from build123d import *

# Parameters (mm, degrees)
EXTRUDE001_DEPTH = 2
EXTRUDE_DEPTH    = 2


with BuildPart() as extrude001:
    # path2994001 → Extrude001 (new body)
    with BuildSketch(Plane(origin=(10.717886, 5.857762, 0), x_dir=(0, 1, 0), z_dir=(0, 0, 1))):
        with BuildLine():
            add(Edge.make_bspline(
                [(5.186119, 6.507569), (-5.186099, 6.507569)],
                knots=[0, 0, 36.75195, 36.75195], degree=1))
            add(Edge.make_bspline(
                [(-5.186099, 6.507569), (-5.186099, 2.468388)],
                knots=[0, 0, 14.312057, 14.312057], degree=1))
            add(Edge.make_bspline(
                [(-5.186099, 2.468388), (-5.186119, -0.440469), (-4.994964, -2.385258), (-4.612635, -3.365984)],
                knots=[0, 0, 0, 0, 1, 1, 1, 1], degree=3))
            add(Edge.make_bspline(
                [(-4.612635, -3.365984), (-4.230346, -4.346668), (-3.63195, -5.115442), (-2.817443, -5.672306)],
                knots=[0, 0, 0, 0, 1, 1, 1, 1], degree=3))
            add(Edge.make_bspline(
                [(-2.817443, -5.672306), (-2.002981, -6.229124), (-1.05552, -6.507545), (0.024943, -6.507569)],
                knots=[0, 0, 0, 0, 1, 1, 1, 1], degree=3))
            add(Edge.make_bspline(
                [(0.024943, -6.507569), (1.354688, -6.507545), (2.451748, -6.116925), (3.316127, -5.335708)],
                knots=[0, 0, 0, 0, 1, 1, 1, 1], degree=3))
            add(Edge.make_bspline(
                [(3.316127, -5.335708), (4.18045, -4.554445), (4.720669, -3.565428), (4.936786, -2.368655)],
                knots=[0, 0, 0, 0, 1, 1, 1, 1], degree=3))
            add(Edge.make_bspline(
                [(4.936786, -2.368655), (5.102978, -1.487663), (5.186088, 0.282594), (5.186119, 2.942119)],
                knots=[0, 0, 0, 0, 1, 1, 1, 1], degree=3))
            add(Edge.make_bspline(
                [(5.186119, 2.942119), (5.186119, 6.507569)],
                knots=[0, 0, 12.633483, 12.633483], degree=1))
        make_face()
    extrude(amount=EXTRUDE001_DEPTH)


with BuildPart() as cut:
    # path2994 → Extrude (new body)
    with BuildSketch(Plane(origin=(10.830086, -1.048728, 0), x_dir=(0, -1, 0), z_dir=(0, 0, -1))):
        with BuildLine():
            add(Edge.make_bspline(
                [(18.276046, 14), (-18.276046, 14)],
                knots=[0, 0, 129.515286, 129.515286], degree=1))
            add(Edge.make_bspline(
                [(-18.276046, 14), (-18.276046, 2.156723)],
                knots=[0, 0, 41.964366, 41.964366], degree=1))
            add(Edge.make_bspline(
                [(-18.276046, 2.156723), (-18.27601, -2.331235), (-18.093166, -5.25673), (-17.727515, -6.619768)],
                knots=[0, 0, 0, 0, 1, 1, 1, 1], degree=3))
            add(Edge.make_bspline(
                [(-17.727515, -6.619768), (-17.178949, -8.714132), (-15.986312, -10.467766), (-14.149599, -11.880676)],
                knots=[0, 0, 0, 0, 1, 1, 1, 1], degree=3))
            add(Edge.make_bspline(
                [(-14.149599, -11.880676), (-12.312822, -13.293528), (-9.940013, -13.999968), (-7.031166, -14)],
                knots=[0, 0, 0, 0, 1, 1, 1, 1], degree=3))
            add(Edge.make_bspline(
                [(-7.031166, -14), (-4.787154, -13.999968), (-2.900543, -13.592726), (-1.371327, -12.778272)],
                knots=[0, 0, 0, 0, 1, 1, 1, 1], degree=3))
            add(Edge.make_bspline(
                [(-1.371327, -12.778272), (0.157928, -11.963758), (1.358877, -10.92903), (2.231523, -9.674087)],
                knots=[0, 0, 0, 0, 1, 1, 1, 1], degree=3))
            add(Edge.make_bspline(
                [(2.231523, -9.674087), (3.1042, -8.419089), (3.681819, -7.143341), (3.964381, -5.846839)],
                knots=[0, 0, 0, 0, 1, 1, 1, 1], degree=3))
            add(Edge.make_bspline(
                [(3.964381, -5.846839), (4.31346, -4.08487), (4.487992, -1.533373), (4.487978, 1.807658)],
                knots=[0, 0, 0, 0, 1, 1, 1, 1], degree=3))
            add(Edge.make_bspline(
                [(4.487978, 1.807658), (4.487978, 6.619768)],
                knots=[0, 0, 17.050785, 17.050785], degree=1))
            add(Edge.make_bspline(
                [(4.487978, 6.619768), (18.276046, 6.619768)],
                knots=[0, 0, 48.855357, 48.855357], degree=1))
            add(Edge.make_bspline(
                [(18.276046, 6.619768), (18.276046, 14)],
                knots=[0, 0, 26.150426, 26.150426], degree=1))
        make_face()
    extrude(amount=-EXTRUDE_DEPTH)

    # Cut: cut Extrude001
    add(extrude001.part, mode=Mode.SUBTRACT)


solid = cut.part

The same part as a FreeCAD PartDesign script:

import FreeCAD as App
import Part
import Sketcher
from FreeCAD import Vector

doc = App.newDocument("Part")
params = doc.addObject("Spreadsheet::Sheet", "Params")
for row, (alias, value) in enumerate([
    ("pad1_length", "2 mm"),
    ("pad2_length", "2 mm"),
], start=1):
    params.set(f"A{row}", alias)
    params.set(f"B{row}", "=" + value)
    params.setAlias(f"B{row}", alias)

body = doc.addObject("PartDesign::Body", "Body")

sketch1 = doc.addObject("Sketcher::SketchObject", "Sketch")
body.addObject(sketch1)
sketch1.AttachmentSupport = (doc.XY_Plane, [""])
sketch1.MapMode = "FlatFace"
sketch1.addGeometry([
    Part.BSplineCurve([Vector(4.210317, 11.043881, 0), Vector(4.210317, 0.671663, 0)], [2, 2], [0, 36.75195], False, 1, [1, 1], False),
    Part.BSplineCurve([Vector(4.210317, 0.671663, 0), Vector(8.249498, 0.671663, 0)], [2, 2], [0, 14.312057], False, 1, [1, 1], False),
    Part.BSplineCurve([Vector(8.249498, 0.671663, 0), Vector(11.158355, 0.671643, 0), Vector(13.103144, 0.862798, 0), Vector(14.08387, 1.245127, 0)], [4, 4], [0, 1], False, 3, [1, 1, 1, 1], False),
    Part.BSplineCurve([Vector(14.08387, 1.245127, 0), Vector(15.064554, 1.627416, 0), Vector(15.833328, 2.225812, 0), Vector(16.390192, 3.040319, 0)], [4, 4], [0, 1], False, 3, [1, 1, 1, 1], False),
    Part.BSplineCurve([Vector(16.390192, 3.040319, 0), Vector(16.94701, 3.854781, 0), Vector(17.225431, 4.802242, 0), Vector(17.225455, 5.882705, 0)], [4, 4], [0, 1], False, 3, [1, 1, 1, 1], False),
    Part.BSplineCurve([Vector(17.225455, 5.882705, 0), Vector(17.225431, 7.21245, 0), Vector(16.834811, 8.30951, 0), Vector(16.053594, 9.173889, 0)], [4, 4], [0, 1], False, 3, [1, 1, 1, 1], False),
    Part.BSplineCurve([Vector(16.053594, 9.173889, 0), Vector(15.272331, 10.038212, 0), Vector(14.283314, 10.578431, 0), Vector(13.086541, 10.794548, 0)], [4, 4], [0, 1], False, 3, [1, 1, 1, 1], False),
    Part.BSplineCurve([Vector(13.086541, 10.794548, 0), Vector(12.205549, 10.96074, 0), Vector(10.435292, 11.04385, 0), Vector(7.775767, 11.043881, 0)], [4, 4], [0, 1], False, 3, [1, 1, 1, 1], False),
    Part.BSplineCurve([Vector(7.775767, 11.043881, 0), Vector(4.210317, 11.043881, 0)], [2, 2], [0, 12.633483], False, 1, [1, 1], False),
], False)
sketch1.addConstraint([
    Sketcher.Constraint("Block", 0),
    Sketcher.Constraint("Block", 1),
    Sketcher.Constraint("Block", 2),
    Sketcher.Constraint("Block", 3),
    Sketcher.Constraint("Block", 4),
    Sketcher.Constraint("Block", 5),
    Sketcher.Constraint("Block", 6),
    Sketcher.Constraint("Block", 7),
    Sketcher.Constraint("Block", 8),
])
pad1 = doc.addObject("PartDesign::Pad", "Pad")
body.addObject(pad1)
pad1.Profile = sketch1
pad1.setExpression("Length", "Params.pad1_length")
body2 = doc.addObject("PartDesign::Body", "Body001")

sketch2 = doc.addObject("Sketcher::SketchObject", "Sketch001")
body2.addObject(sketch2)
sketch2.AttachmentSupport = (doc.getObject("XY_Plane001"), [""])
sketch2.MapMode = "FlatFace"
sketch2.addGeometry([
    Part.BSplineCurve([Vector(-3.169914, -19.324774, 0), Vector(-3.169914, 17.227318, 0)], [2, 2], [0, 129.515286], False, 1, [1, 1], False),
    Part.BSplineCurve([Vector(-3.169914, 17.227318, 0), Vector(8.673363, 17.227318, 0)], [2, 2], [0, 41.964366], False, 1, [1, 1], False),
    Part.BSplineCurve([Vector(8.673363, 17.227318, 0), Vector(13.161321, 17.227282, 0), Vector(16.086816, 17.044438, 0), Vector(17.449854, 16.678787, 0)], [4, 4], [0, 1], False, 3, [1, 1, 1, 1], False),
    Part.BSplineCurve([Vector(17.449854, 16.678787, 0), Vector(19.544218, 16.130221, 0), Vector(21.297852, 14.937584, 0), Vector(22.710762, 13.100871, 0)], [4, 4], [0, 1], False, 3, [1, 1, 1, 1], False),
    Part.BSplineCurve([Vector(22.710762, 13.100871, 0), Vector(24.123614, 11.264094, 0), Vector(24.830054, 8.891285, 0), Vector(24.830086, 5.982438, 0)], [4, 4], [0, 1], False, 3, [1, 1, 1, 1], False),
    Part.BSplineCurve([Vector(24.830086, 5.982438, 0), Vector(24.830054, 3.738426, 0), Vector(24.422812, 1.851815, 0), Vector(23.608358, 0.322599, 0)], [4, 4], [0, 1], False, 3, [1, 1, 1, 1], False),
    Part.BSplineCurve([Vector(23.608358, 0.322599, 0), Vector(22.793844, -1.206656, 0), Vector(21.759116, -2.407605, 0), Vector(20.504173, -3.280251, 0)], [4, 4], [0, 1], False, 3, [1, 1, 1, 1], False),
    Part.BSplineCurve([Vector(20.504173, -3.280251, 0), Vector(19.249175, -4.152928, 0), Vector(17.973427, -4.730547, 0), Vector(16.676925, -5.013109, 0)], [4, 4], [0, 1], False, 3, [1, 1, 1, 1], False),
    Part.BSplineCurve([Vector(16.676925, -5.013109, 0), Vector(14.914956, -5.362188, 0), Vector(12.363459, -5.53672, 0), Vector(9.022428, -5.536706, 0)], [4, 4], [0, 1], False, 3, [1, 1, 1, 1], False),
    Part.BSplineCurve([Vector(9.022428, -5.536706, 0), Vector(4.210318, -5.536706, 0)], [2, 2], [0, 17.050785], False, 1, [1, 1], False),
    Part.BSplineCurve([Vector(4.210318, -5.536706, 0), Vector(4.210318, -19.324774, 0)], [2, 2], [0, 48.855357], False, 1, [1, 1], False),
    Part.BSplineCurve([Vector(4.210318, -19.324774, 0), Vector(-3.169914, -19.324774, 0)], [2, 2], [0, 26.150426], False, 1, [1, 1], False),
], False)
sketch2.addConstraint([
    Sketcher.Constraint("Block", 0),
    Sketcher.Constraint("Block", 1),
    Sketcher.Constraint("Block", 2),
    Sketcher.Constraint("Block", 3),
    Sketcher.Constraint("Block", 4),
    Sketcher.Constraint("Block", 5),
    Sketcher.Constraint("Block", 6),
    Sketcher.Constraint("Block", 7),
    Sketcher.Constraint("Block", 8),
    Sketcher.Constraint("Block", 9),
    Sketcher.Constraint("Block", 10),
    Sketcher.Constraint("Block", 11),
])
pad2 = doc.addObject("PartDesign::Pad", "Pad001")
body2.addObject(pad2)
pad2.Profile = sketch2
pad2.setExpression("Length", "Params.pad2_length")
doc.recompute()

boolean = doc.addObject("PartDesign::Boolean", "Boolean")
body2.addObject(boolean)
boolean.Type = "Cut"
boolean.addObjects([body])

doc.recompute()
